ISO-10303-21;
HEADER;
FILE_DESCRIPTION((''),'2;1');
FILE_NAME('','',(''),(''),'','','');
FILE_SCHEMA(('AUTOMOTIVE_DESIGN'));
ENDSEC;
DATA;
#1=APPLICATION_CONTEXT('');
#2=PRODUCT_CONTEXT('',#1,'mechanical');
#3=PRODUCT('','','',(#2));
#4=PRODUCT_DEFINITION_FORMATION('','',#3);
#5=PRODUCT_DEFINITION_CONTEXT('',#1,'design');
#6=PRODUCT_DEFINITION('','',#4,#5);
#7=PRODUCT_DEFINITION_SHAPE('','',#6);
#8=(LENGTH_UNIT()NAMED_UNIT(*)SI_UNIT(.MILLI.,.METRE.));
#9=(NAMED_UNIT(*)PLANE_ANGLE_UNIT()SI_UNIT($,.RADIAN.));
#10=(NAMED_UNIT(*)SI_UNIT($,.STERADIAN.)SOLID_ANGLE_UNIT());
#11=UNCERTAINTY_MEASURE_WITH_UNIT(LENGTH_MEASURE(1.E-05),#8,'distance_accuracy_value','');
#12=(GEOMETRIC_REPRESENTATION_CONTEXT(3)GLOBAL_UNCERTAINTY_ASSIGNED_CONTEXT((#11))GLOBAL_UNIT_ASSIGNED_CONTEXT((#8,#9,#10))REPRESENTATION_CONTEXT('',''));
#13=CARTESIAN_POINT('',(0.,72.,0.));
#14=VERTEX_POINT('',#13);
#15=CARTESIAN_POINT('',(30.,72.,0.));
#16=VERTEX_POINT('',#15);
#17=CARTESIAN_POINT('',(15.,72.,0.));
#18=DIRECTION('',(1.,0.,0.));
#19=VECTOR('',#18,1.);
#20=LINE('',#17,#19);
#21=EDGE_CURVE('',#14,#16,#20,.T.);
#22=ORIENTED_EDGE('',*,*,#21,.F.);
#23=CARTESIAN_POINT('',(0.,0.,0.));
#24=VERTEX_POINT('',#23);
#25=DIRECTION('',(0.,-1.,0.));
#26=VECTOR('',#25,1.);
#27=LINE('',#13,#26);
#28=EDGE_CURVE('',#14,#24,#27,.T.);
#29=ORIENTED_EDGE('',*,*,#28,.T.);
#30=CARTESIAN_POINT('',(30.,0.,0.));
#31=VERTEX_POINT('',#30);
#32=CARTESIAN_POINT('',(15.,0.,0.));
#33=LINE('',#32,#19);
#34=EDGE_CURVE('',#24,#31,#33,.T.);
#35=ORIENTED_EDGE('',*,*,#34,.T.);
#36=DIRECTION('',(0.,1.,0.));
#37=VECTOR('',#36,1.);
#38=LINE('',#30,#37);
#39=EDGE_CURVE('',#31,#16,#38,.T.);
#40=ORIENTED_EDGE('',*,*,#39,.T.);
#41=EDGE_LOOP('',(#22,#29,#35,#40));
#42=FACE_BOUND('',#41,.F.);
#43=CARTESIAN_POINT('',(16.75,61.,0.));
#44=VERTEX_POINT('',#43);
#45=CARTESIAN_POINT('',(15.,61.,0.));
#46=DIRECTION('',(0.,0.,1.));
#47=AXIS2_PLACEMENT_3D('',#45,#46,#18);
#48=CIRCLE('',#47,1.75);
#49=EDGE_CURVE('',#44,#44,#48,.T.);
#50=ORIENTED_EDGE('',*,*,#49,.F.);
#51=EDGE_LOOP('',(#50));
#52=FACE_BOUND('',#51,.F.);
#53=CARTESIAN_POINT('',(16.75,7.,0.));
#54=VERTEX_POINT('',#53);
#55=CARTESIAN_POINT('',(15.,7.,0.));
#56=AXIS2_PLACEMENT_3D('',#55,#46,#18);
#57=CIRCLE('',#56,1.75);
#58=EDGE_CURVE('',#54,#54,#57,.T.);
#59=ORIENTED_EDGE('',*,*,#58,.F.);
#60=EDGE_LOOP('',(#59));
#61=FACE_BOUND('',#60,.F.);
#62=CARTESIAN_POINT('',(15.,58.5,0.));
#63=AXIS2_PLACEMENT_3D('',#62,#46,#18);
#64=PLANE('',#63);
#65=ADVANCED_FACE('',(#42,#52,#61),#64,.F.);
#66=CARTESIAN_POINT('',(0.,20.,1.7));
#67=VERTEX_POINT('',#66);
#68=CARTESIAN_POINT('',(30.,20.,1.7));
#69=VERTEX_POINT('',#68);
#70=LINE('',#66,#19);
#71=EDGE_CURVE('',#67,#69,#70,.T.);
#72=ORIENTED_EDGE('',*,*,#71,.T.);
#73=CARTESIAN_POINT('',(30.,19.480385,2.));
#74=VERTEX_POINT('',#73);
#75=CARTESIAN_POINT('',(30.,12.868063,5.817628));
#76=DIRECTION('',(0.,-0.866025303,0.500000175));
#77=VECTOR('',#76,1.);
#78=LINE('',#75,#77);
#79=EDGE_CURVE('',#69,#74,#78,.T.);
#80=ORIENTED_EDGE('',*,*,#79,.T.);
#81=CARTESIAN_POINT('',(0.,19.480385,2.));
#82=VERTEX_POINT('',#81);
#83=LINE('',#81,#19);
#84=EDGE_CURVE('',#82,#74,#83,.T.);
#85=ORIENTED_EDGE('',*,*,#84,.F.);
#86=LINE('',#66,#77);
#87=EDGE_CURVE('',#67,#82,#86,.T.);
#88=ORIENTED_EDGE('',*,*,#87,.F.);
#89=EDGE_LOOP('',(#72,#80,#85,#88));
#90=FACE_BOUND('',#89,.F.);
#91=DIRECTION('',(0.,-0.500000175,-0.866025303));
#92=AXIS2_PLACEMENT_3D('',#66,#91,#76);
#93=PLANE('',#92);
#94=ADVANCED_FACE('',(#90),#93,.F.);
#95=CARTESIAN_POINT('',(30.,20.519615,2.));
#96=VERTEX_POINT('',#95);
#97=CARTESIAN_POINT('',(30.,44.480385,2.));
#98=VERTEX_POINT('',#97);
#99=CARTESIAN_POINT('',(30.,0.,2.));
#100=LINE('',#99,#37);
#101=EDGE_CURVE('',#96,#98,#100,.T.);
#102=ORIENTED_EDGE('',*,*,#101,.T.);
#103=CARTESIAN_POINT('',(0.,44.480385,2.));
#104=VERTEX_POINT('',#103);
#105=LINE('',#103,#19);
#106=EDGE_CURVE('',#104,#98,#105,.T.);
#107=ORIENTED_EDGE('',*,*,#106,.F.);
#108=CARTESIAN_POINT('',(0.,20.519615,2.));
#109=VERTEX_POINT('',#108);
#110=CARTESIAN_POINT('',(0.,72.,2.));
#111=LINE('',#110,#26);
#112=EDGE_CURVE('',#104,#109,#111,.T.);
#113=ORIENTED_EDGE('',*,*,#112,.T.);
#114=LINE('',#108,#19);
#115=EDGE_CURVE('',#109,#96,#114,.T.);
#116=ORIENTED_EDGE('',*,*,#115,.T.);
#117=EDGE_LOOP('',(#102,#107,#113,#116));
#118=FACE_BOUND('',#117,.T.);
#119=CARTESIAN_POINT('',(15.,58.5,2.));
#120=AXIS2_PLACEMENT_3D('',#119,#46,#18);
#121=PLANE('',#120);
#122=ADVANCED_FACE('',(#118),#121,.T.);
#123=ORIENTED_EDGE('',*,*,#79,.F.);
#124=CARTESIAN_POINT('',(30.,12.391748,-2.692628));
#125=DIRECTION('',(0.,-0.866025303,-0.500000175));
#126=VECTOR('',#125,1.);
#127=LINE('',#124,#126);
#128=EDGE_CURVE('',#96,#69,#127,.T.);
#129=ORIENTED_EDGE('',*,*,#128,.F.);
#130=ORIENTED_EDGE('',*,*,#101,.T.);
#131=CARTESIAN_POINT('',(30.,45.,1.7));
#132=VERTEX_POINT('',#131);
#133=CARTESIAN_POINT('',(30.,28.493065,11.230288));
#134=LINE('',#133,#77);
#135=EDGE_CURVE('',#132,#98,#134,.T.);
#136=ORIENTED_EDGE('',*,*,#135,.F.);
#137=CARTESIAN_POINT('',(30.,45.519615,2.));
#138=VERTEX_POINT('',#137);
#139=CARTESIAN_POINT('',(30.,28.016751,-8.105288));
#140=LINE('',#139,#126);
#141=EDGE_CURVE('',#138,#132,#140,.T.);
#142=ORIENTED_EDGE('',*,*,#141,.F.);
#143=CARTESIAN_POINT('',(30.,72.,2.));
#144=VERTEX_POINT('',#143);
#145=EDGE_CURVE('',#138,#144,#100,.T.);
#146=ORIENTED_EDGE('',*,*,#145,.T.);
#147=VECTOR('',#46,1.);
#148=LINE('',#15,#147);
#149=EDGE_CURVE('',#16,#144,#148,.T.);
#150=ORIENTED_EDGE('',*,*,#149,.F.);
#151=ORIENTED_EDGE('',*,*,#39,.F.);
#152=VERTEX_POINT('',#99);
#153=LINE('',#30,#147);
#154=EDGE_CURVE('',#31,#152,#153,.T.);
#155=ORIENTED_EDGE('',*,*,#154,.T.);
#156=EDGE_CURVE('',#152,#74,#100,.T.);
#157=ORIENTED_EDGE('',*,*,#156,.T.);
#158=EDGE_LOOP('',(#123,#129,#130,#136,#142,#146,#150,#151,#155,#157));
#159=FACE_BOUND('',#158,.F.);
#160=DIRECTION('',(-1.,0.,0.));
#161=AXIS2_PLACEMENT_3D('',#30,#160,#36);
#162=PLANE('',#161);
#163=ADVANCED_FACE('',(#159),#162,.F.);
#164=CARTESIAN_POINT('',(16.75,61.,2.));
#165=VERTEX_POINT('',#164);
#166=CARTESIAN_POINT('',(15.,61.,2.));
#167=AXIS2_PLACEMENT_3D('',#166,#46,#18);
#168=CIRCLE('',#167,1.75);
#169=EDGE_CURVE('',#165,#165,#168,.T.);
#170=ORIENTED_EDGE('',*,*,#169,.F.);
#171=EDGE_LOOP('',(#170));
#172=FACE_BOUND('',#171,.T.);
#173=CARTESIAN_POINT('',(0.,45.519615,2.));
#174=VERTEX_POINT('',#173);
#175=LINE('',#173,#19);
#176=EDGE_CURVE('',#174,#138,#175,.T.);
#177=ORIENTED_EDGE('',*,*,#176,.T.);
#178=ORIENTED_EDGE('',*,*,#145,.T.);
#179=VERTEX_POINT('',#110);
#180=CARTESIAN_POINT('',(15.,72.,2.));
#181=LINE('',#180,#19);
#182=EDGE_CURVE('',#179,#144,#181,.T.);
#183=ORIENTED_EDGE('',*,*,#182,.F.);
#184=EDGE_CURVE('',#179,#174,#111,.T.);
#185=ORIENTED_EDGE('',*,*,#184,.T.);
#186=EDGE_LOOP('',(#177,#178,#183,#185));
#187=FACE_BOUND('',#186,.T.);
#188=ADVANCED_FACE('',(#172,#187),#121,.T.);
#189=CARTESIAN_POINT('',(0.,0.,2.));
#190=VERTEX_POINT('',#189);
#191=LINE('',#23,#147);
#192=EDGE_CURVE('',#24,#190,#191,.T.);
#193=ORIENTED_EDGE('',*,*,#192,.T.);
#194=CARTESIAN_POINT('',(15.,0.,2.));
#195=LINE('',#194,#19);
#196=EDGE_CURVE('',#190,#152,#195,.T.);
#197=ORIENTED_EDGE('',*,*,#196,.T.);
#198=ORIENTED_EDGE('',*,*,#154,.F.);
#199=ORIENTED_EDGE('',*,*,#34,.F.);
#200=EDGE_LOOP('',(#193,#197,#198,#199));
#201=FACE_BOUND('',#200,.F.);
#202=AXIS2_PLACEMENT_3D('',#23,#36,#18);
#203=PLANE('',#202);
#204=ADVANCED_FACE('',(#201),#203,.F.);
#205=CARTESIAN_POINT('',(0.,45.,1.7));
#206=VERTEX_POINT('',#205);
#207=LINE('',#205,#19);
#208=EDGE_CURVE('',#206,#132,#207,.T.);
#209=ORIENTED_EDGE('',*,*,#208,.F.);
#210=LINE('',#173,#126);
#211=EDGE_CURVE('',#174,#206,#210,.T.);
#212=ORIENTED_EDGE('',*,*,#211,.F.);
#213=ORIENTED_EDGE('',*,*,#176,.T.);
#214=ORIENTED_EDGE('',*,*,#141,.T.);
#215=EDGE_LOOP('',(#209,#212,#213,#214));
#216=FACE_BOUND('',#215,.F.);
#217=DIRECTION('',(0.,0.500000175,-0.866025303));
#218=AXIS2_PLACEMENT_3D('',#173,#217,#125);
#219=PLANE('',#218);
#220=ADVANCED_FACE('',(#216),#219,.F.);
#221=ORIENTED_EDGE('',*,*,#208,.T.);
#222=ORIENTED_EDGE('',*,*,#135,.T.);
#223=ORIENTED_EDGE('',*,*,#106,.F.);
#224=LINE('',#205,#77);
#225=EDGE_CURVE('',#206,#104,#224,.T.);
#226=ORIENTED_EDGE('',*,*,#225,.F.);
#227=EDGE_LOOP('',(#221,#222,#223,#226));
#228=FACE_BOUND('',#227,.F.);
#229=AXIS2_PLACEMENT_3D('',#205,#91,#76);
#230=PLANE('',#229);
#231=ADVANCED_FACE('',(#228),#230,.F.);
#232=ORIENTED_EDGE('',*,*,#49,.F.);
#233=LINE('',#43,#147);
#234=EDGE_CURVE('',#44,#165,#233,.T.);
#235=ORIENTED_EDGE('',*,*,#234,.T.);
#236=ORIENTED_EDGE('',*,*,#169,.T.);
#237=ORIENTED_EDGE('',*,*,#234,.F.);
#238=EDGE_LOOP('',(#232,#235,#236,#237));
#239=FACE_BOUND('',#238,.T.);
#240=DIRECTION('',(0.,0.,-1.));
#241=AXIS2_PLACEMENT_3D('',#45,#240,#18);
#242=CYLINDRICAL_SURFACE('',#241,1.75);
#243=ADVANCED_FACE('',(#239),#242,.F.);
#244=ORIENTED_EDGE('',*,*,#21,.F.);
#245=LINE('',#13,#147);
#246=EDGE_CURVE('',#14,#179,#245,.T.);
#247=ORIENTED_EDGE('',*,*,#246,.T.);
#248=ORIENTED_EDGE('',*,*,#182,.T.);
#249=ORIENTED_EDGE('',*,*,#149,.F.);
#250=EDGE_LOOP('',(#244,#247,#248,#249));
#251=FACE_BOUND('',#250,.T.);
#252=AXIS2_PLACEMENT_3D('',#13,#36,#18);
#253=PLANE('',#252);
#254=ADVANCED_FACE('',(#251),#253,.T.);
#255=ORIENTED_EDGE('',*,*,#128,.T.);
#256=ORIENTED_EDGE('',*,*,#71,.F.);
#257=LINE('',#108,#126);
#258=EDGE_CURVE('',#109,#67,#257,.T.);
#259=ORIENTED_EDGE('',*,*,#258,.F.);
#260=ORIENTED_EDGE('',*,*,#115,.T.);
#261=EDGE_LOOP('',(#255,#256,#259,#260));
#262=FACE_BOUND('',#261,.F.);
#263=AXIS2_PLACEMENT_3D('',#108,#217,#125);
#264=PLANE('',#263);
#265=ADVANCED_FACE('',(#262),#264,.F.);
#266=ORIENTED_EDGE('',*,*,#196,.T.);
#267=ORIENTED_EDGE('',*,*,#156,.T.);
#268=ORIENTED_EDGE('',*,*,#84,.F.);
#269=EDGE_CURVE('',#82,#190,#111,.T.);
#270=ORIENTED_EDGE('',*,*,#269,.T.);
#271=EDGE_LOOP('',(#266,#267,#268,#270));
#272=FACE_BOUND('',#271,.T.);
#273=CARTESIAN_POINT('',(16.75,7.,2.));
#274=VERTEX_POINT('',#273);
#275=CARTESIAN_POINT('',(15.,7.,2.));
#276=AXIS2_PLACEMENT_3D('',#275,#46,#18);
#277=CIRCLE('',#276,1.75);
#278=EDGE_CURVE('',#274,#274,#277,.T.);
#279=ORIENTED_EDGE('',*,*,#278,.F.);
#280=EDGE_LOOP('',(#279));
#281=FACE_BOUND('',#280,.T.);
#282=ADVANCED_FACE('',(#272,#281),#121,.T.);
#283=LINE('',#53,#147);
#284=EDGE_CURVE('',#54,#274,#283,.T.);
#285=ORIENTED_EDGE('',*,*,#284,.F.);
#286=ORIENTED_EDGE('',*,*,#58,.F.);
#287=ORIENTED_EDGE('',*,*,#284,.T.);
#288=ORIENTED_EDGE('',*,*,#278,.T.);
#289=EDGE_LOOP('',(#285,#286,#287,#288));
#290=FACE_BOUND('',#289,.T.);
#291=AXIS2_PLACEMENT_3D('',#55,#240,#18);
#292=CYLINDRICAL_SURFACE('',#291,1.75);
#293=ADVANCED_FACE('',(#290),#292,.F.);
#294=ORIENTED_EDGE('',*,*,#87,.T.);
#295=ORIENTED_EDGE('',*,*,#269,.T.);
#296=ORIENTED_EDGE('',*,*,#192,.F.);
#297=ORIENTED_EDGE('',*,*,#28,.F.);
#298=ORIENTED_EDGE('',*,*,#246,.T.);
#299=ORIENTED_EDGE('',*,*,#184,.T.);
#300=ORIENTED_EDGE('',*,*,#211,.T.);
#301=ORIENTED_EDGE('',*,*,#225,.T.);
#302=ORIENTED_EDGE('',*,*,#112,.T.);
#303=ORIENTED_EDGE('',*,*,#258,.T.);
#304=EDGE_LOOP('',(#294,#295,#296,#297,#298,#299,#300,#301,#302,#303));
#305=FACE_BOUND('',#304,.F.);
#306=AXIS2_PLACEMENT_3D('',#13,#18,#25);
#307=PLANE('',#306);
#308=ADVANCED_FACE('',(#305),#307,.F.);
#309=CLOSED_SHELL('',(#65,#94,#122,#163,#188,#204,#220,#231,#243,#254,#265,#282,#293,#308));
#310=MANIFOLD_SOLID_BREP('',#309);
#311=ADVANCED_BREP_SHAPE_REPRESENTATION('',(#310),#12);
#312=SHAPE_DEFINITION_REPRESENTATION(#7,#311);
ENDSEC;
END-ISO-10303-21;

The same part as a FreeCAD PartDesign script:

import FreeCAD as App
import Part
import Sketcher
Q = App.Units.Quantity


def add_polygon(sketch, points):
    """Adds a closed chain of lines whose ends are joined by coincident constraints."""
    first, n = sketch.GeometryCount, len(points)
    for a, b in zip(points, points[1:] + points[:1]):
        sketch.addGeometry(Part.LineSegment(App.Vector(*a, 0), App.Vector(*b, 0)), False)
    for i in range(n):
        sketch.addConstraint(Sketcher.Constraint("Coincident", first + i, 2, first + (i + 1) % n, 1))

doc = App.newDocument("Part")
body = doc.addObject("PartDesign::Body", "Body")

sketch1 = body.newObject("Sketcher::SketchObject", "Sketch")
sketch1.AttachmentSupport = (doc.getObject("XY_Plane"), [""])
sketch1.MapMode = "FlatFace"
add_polygon(sketch1, [(0, 72), (0, 0), (30, 0), (30, 72)])
sketch1.addGeometry(Part.Circle(App.Vector(15, 7, 0), App.Vector(0, 0, 1), 1.75), False)
sketch1.addGeometry(Part.Circle(App.Vector(15, 61, 0), App.Vector(0, 0, 1), 1.75), False)
sketch1.addConstraint(Sketcher.Constraint("Vertical", 0))
sketch1.addConstraint(Sketcher.Constraint("Horizontal", 1))
sketch1.addConstraint(Sketcher.Constraint("Vertical", 2))
sketch1.addConstraint(Sketcher.Constraint("Horizontal", 3))
sketch1.addConstraint(Sketcher.Constraint("Coincident", 0, 2, -1, 1))
sketch1.addConstraint(Sketcher.Constraint("Equal", 4, 5))
sketch1.addConstraint(Sketcher.Constraint("Vertical", 4, 3, 5, 3))
sketch1.addConstraint(Sketcher.Constraint("Diameter", 4, 3.5))
sketch1.addConstraint(Sketcher.Constraint("DistanceX", 1, 1, 1, 2, 30.0))
sketch1.addConstraint(Sketcher.Constraint("DistanceY", 0, 2, 0, 1, 72.0))
sketch1.addConstraint(Sketcher.Constraint("DistanceX", -1, 1, 4, 3, 15.0))
sketch1.addConstraint(Sketcher.Constraint("DistanceY", -1, 1, 4, 3, 7.0))
sketch1.addConstraint(Sketcher.Constraint("DistanceY", -1, 1, 5, 3, 61.0))
pad1 = body.newObject("PartDesign::Pad", "Pad")
pad1.Profile = sketch1
pad1.Length = 2

sketch2 = body.newObject("Sketcher::SketchObject", "Sketch001")
sketch2.AttachmentSupport = (doc.getObject("YZ_Plane"), [""])
sketch2.MapMode = "FlatFace"
add_polygon(sketch2, [(20, 1.7), (19.480385, 2), (20.519615, 2)])
add_polygon(sketch2, [(44.480385, 2), (45.519615, 2), (45, 1.7)])
sketch2.addConstraint(Sketcher.Constraint("Horizontal", 1))
sketch2.addConstraint(Sketcher.Constraint("Horizontal", 3))
sketch2.addConstraint(Sketcher.Constraint("Parallel", 2, 4))
sketch2.addConstraint(Sketcher.Constraint("Parallel", 0, 5))
sketch2.addConstraint(Sketcher.Constraint("Horizontal", 1, 2, 3, 2))
sketch2.addConstraint(Sketcher.Constraint("Horizontal", 2, 2, 4, 2))
sketch2.addConstraint(Sketcher.Constraint("Equal", 0, 2))
sketch2.addConstraint(Sketcher.Constraint("Angle", 0, Q("149.999988 deg")))
sketch2.addConstraint(Sketcher.Constraint("DistanceY", -1, 1, 0, 2, 2.0))
sketch2.addConstraint(Sketcher.Constraint("DistanceX", -1, 1, 2, 2, 20.0))
sketch2.addConstraint(Sketcher.Constraint("DistanceX", -1, 1, 4, 2, 45.0))
sketch2.addConstraint(Sketcher.Constraint("Distance", 0, 0.6))
pocket1 = body.newObject("PartDesign::Pocket", "Pocket")
pocket1.Profile = sketch2
pocket1.Type = "ThroughAll"
pocket1.Reversed = True

doc.recompute()
